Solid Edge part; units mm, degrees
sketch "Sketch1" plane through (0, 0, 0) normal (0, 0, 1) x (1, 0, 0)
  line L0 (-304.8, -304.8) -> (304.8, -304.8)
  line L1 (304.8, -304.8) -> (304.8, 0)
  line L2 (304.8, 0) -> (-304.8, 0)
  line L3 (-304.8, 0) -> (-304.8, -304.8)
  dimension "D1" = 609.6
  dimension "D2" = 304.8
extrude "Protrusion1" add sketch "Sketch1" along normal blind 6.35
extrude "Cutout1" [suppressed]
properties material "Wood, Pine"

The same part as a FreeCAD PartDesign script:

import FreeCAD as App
import Part
import Sketcher
Q = App.Units.Quantity

doc = App.newDocument("Part")
body = doc.addObject("PartDesign::Body", "Body")

# Sketch on XY plane
sketch1 = body.newObject("Sketcher::SketchObject", "Sketch")
sketch1.AttachmentSupport = (doc.getObject("XY_Plane"), [""])
sketch1.MapMode = "FlatFace"
sketch1.addGeometry([
    Part.LineSegment(App.Vector(-305, 0, 0), App.Vector(-305, -305, 0)),
    Part.LineSegment(App.Vector(-305, -305, 0), App.Vector(305, -305, 0)),
    Part.LineSegment(App.Vector(305, -305, 0), App.Vector(305, 0, 0)),
    Part.LineSegment(App.Vector(305, 0, 0), App.Vector(-305, 0, 0)),
], False)
sketch1.addConstraint([
    Sketcher.Constraint("Coincident", 0, 2, 1, 1),
    Sketcher.Constraint("Coincident", 1, 2, 2, 1),
    Sketcher.Constraint("Coincident", 2, 2, 3, 1),
    Sketcher.Constraint("Coincident", 3, 2, 0, 1),
    Sketcher.Constraint("Vertical", 0),
    Sketcher.Constraint("Horizontal", 1),
    Sketcher.Constraint("Vertical", 2),
    Sketcher.Constraint("Horizontal", 3),
    Sketcher.Constraint("Symmetric", 2, 2, 3, 2, -1, 1),
    Sketcher.Constraint("DistanceY", 0, 2, 0, 1, Q("12 in")),
    Sketcher.Constraint("DistanceX", 0, 2, -1, 1, Q("12 in")),
])
pad1 = body.newObject("PartDesign::Pad", "Pad")
pad1.Profile = sketch1
pad1.Length = Q("0.25 in")

doc.recompute()
